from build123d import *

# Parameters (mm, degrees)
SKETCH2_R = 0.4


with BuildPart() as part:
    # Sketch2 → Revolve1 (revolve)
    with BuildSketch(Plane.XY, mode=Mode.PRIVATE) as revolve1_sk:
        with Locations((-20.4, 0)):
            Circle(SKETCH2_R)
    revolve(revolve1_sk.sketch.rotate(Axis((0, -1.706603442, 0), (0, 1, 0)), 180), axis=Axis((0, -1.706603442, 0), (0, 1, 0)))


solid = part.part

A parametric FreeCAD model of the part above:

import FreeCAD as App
import Part
import Sketcher
from FreeCAD import Vector

doc = App.newDocument("Part")
params = doc.addObject("Spreadsheet::Sheet", "Params")
for row, (alias, value) in enumerate([
    ("sketch1_diameter", "0.8 mm"),
    ("revolution_angle", "360 deg"),
], start=1):
    params.set(f"A{row}", alias)
    params.set(f"B{row}", "=" + value)
    params.setAlias(f"B{row}", alias)

body = doc.addObject("PartDesign::Body", "Body")

# Sketch on XY plane
sketch1 = body.newObject("Sketcher::SketchObject", "Sketch")
sketch1.AttachmentSupport = (doc.getObject("XY_Plane"), [""])
sketch1.MapMode = "FlatFace"
sketch1.addGeometry(Part.Circle(Vector(-20.4, 0, 0), Vector(0, 0, 1), 0.4), False)
sketch1.addConstraint(Sketcher.Constraint("PointOnObject", 0, 3, -1))
sketch1.addConstraint(Sketcher.Constraint("Diameter", 0, 0.8))
sketch1.addConstraint(Sketcher.Constraint("DistanceX", 0, 3, -1, 1, 20.4))
sketch1.setExpression("Constraints[1]", "Params.sketch1_diameter")
revolution = body.newObject("PartDesign::Revolution", "Revolution")
revolution.Profile = sketch1
revolution.ReferenceAxis = (sketch1, ["V_Axis"])
revolution.setExpression("Angle", "Params.revolution_angle")

doc.recompute()
